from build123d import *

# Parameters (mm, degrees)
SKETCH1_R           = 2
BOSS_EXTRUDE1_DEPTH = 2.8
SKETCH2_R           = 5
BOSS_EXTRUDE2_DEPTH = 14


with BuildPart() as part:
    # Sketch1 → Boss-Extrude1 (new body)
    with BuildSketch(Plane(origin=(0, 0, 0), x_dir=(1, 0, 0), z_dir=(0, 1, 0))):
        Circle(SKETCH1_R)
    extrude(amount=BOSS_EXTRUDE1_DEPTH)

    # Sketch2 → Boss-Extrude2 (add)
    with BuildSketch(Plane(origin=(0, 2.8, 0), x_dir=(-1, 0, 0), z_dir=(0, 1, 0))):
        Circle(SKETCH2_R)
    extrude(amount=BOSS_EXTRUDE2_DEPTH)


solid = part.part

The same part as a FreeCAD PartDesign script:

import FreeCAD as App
import Part
import Sketcher

doc = App.newDocument("Part")
body = doc.addObject("PartDesign::Body", "Body")

# Sketch on XZ plane
sketch1 = body.newObject("Sketcher::SketchObject", "Sketch")
sketch1.AttachmentSupport = (doc.getObject("XZ_Plane"), [""])
sketch1.MapMode = "FlatFace"
sketch1.addGeometry(Part.Circle(App.Vector(0, 0, 0), App.Vector(0, 0, 1), 2), False)
sketch1.addConstraint(Sketcher.Constraint("Coincident", 0, 3, -1, 1))
sketch1.addConstraint(Sketcher.Constraint("Diameter", 0, 4.0))
pad1 = body.newObject("PartDesign::Pad", "Pad")
pad1.Profile = sketch1
pad1.Length = 2.8
pad1.Reversed = True

# Sketch on XZ plane
sketch2 = body.newObject("Sketcher::SketchObject", "Sketch001")
sketch2.AttachmentSupport = (doc.getObject("XZ_Plane"), [""])
sketch2.MapMode = "FlatFace"
sketch2.AttachmentOffset = App.Placement(App.Vector(0, 0, -2.8), App.Rotation())
sketch2.addGeometry(Part.Circle(App.Vector(0, 0, 0), App.Vector(0, 0, 1), 5), False)
sketch2.addConstraint(Sketcher.Constraint("Coincident", 0, 3, -1, 1))
sketch2.addConstraint(Sketcher.Constraint("Diameter", 0, 10.0))
pad2 = body.newObject("PartDesign::Pad", "Pad001")
pad2.Profile = sketch2
pad2.Length = 14
pad2.Reversed = True

doc.recompute()
